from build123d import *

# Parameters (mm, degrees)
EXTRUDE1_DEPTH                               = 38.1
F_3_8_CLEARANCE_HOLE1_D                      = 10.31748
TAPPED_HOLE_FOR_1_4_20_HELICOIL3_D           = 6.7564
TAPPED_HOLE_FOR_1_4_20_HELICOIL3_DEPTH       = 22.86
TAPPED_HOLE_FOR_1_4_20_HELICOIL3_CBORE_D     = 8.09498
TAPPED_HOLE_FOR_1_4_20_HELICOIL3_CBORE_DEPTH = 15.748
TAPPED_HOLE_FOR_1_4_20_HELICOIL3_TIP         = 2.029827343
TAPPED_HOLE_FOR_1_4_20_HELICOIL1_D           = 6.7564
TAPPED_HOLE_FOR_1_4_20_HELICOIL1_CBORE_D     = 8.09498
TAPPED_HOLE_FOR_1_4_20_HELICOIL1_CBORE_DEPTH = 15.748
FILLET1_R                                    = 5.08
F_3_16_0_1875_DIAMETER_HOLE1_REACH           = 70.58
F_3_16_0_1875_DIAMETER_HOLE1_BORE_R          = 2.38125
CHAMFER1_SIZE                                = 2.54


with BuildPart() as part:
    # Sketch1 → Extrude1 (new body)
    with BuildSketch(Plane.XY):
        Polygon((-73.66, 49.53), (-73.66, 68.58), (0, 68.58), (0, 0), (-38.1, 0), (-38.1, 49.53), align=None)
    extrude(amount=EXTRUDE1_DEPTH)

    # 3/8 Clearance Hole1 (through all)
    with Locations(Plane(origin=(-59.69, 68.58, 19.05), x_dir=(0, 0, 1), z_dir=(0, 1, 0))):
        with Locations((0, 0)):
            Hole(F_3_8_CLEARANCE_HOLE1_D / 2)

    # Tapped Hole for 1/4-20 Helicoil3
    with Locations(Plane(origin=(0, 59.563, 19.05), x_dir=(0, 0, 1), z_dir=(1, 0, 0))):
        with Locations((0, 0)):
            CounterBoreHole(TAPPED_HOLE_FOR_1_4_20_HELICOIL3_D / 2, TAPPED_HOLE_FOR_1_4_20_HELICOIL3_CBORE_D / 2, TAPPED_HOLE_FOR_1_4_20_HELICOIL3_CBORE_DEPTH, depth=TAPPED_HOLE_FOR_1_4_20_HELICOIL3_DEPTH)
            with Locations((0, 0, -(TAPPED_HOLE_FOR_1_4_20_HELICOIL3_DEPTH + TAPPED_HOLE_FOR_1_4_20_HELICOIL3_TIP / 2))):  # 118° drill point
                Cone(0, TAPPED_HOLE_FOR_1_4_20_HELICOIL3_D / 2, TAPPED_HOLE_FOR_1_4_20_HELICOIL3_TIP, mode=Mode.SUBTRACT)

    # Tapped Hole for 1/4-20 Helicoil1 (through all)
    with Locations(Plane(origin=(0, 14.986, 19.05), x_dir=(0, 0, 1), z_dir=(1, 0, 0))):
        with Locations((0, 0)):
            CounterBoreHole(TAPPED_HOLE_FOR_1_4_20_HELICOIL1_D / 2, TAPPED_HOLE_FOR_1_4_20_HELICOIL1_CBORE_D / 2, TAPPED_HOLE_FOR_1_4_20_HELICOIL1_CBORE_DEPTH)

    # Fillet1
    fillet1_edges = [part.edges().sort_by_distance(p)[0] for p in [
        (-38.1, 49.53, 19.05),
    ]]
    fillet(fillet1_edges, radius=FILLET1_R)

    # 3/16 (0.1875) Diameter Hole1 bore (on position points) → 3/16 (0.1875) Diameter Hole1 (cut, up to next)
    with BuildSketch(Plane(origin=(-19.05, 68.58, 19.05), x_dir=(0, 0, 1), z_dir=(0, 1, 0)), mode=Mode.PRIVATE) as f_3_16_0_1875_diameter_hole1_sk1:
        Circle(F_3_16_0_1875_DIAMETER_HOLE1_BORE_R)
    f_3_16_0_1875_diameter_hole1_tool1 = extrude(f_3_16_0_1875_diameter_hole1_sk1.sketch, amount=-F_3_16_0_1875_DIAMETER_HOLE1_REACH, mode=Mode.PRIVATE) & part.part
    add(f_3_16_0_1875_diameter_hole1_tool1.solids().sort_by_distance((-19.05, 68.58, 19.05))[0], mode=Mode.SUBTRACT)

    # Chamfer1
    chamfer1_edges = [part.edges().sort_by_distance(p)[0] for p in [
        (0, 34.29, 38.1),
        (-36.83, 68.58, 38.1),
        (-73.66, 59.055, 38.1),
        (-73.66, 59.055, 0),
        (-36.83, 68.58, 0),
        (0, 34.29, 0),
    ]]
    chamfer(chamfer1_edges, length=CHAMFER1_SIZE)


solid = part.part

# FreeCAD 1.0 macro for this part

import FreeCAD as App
import Part
import Sketcher
from FreeCAD import Vector
Q = App.Units.Quantity


def edges_at(feature, points):
    """Names of the edges that pass closest to the given points."""
    edges = feature.Shape.Edges
    near = lambda p: min(range(len(edges)), key=lambda i: edges[i].distToShape(Part.Vertex(*p))[0])
    return sorted({f"Edge{near(p) + 1}" for p in points})


def add_polygon(sketch, points):
    """Adds a closed chain of lines whose ends are joined by coincident constraints."""
    first, n = sketch.GeometryCount, len(points)
    for a, b in zip(points, points[1:] + points[:1]):
        sketch.addGeometry(Part.LineSegment(App.Vector(*a, 0), App.Vector(*b, 0)), False)
    for i in range(n):
        sketch.addConstraint(Sketcher.Constraint("Coincident", first + i, 2, first + (i + 1) % n, 1))

doc = App.newDocument("Part")
body = doc.addObject("PartDesign::Body", "Body")

# Sketch on XY plane
sketch1 = doc.addObject("Sketcher::SketchObject", "Sketch")
body.addObject(sketch1)
sketch1.AttachmentSupport = (doc.XY_Plane, [""])
sketch1.MapMode = "FlatFace"
add_polygon(sketch1, [(-74, 69), (-74, 50), (-38, 50), (-38, 0), (0, 0), (0, 69)])  # lines 0-5
sketch1.addConstraint(Sketcher.Constraint("Vertical", 0))
sketch1.addConstraint(Sketcher.Constraint("Horizontal", 1))
sketch1.addConstraint(Sketcher.Constraint("Vertical", 2))
sketch1.addConstraint(Sketcher.Constraint("Horizontal", 3))
sketch1.addConstraint(Sketcher.Constraint("Vertical", 4))
sketch1.addConstraint(Sketcher.Constraint("Horizontal", 5))
sketch1.addConstraint(Sketcher.Constraint("Coincident", 3, 2, -1, 1))
sketch1.addConstraint(Sketcher.Constraint("DistanceX", 1, 1, 1, 2, Q("1.4 in")))
sketch1.addConstraint(Sketcher.Constraint("DistanceX", 3, 1, 3, 2, Q("1.5 in")))
sketch1.addConstraint(Sketcher.Constraint("DistanceY", 4, 1, 4, 2, Q("2.7 in")))
sketch1.addConstraint(Sketcher.Constraint("DistanceY", 0, 2, 0, 1, Q("0.75 in")))
pad1 = doc.addObject("PartDesign::Pad", "Pad")
body.addObject(pad1)
pad1.Profile = sketch1
pad1.Length = Q("1.5 in")

# Sketch on XZ plane
sketch2 = doc.addObject("Sketcher::SketchObject", "Sketch001")
body.addObject(sketch2)
sketch2.AttachmentSupport = (doc.XZ_Plane, [""])
sketch2.MapMode = "FlatFace"
sketch2.AttachmentOffset = App.Placement(Vector(0, 0, -2.7 * 25.4), App.Rotation())
sketch2.addGeometry(Part.Circle(Vector(-60, 19, 0), Vector(0, 0, 1), 5), False)
sketch2.addConstraint(Sketcher.Constraint("Diameter", 0, Q("0.4062 in")))
sketch2.addConstraint(Sketcher.Constraint("DistanceX", 0, 3, -1, 1, Q("2.35 in")))
sketch2.addConstraint(Sketcher.Constraint("DistanceY", -1, 1, 0, 3, Q("0.75 in")))
doc.recompute()
hole = doc.addObject("PartDesign::Hole", "Hole")
body.addObject(hole)
hole.Profile = sketch2
hole.ThreadType = "None"
hole.Diameter = Q("0.4062 in")
hole.DepthType = "ThroughAll"
hole.Reversed = True

# Sketch on YZ plane
sketch3 = doc.addObject("Sketcher::SketchObject", "Sketch002")
body.addObject(sketch3)
sketch3.AttachmentSupport = (doc.YZ_Plane, [""])
sketch3.MapMode = "FlatFace"
sketch3.addGeometry(Part.Circle(Vector(59.6, 19.1, 0), Vector(0, 0, 1), 3.4), False)
sketch3.addConstraint(Sketcher.Constraint("Diameter", 0, Q("0.266 in")))
sketch3.addConstraint(Sketcher.Constraint("DistanceY", -1, 1, 0, 3, Q("0.75 in")))
sketch3.addConstraint(Sketcher.Constraint("DistanceX", -1, 1, 0, 3, Q("2.345 in")))
doc.recompute()
hole2 = doc.addObject("PartDesign::Hole", "Hole001")
body.addObject(hole2)
hole2.Profile = sketch3
hole2.ThreadType = "None"
hole2.Diameter = Q("0.266 in")
hole2.DepthType = "Dimension"
hole2.Depth = Q("0.9 in")
hole2.DrillPoint = "Angled"
hole2.DrillPointAngle = 118
hole2.HoleCutType = "Counterbore"
hole2.HoleCutDiameter = Q("0.3187 in")
hole2.HoleCutDepth = Q("0.62 in")

# Sketch on YZ plane
sketch4 = doc.addObject("Sketcher::SketchObject", "Sketch003")
body.addObject(sketch4)
sketch4.AttachmentSupport = (doc.YZ_Plane, [""])
sketch4.MapMode = "FlatFace"
sketch4.addGeometry(Part.Circle(Vector(15, 19.1, 0), Vector(0, 0, 1), 3.4), False)
sketch4.addConstraint(Sketcher.Constraint("Diameter", 0, Q("0.266 in")))
sketch4.addConstraint(Sketcher.Constraint("DistanceX", -1, 1, 0, 3, Q("0.59 in")))
sketch4.addConstraint(Sketcher.Constraint("DistanceY", -1, 1, 0, 3, Q("0.75 in")))
doc.recompute()
hole3 = doc.addObject("PartDesign::Hole", "Hole002")
body.addObject(hole3)
hole3.Profile = sketch4
hole3.ThreadType = "None"
hole3.Diameter = Q("0.266 in")
hole3.DepthType = "ThroughAll"
hole3.HoleCutType = "Counterbore"
hole3.HoleCutDiameter = Q("0.3187 in")
hole3.HoleCutDepth = Q("0.62 in")
doc.recompute()

fillet = doc.addObject("PartDesign::Fillet", "Fillet")
body.addObject(fillet)
fillet.Base = (hole3, edges_at(hole3, [(-38.1, 49.53, 19.05)]))
fillet.Radius = Q("0.2 in")

# Sketch on XZ plane
sketch5 = doc.addObject("Sketcher::SketchObject", "Sketch004")
body.addObject(sketch5)
sketch5.AttachmentSupport = (doc.XZ_Plane, [""])
sketch5.MapMode = "FlatFace"
sketch5.AttachmentOffset = App.Placement(Vector(0, 0, -2.7 * 25.4), App.Rotation())
sketch5.addGeometry(Part.Circle(Vector(-19.1, 19.1, 0), Vector(0, 0, 1), 2.4), False)
sketch5.addConstraint(Sketcher.Constraint("Diameter", 0, Q("0.1875 in")))
sketch5.addConstraint(Sketcher.Constraint("DistanceX", 0, 3, -1, 1, Q("0.75 in")))
sketch5.addConstraint(Sketcher.Constraint("DistanceY", -1, 1, 0, 3, Q("0.75 in")))
pocket1 = doc.addObject("PartDesign::Pocket", "Pocket")
body.addObject(pocket1)
pocket1.Profile = sketch5
pocket1.Length = 6.620777
pocket1.Reversed = True
doc.recompute()

chamfer = doc.addObject("PartDesign::Chamfer", "Chamfer")
body.addObject(chamfer)
chamfer.Base = (pocket1, edges_at(pocket1, [
    (0, 34.29, 38.1),
    (-36.83, 68.58, 38.1),
    (-73.66, 59.055, 38.1),
    (-73.66, 59.055, 0),
    (-36.83, 68.58, 0),
    (0, 34.29, 0),
]))
chamfer.Size = Q("0.1 in")

doc.recompute()
